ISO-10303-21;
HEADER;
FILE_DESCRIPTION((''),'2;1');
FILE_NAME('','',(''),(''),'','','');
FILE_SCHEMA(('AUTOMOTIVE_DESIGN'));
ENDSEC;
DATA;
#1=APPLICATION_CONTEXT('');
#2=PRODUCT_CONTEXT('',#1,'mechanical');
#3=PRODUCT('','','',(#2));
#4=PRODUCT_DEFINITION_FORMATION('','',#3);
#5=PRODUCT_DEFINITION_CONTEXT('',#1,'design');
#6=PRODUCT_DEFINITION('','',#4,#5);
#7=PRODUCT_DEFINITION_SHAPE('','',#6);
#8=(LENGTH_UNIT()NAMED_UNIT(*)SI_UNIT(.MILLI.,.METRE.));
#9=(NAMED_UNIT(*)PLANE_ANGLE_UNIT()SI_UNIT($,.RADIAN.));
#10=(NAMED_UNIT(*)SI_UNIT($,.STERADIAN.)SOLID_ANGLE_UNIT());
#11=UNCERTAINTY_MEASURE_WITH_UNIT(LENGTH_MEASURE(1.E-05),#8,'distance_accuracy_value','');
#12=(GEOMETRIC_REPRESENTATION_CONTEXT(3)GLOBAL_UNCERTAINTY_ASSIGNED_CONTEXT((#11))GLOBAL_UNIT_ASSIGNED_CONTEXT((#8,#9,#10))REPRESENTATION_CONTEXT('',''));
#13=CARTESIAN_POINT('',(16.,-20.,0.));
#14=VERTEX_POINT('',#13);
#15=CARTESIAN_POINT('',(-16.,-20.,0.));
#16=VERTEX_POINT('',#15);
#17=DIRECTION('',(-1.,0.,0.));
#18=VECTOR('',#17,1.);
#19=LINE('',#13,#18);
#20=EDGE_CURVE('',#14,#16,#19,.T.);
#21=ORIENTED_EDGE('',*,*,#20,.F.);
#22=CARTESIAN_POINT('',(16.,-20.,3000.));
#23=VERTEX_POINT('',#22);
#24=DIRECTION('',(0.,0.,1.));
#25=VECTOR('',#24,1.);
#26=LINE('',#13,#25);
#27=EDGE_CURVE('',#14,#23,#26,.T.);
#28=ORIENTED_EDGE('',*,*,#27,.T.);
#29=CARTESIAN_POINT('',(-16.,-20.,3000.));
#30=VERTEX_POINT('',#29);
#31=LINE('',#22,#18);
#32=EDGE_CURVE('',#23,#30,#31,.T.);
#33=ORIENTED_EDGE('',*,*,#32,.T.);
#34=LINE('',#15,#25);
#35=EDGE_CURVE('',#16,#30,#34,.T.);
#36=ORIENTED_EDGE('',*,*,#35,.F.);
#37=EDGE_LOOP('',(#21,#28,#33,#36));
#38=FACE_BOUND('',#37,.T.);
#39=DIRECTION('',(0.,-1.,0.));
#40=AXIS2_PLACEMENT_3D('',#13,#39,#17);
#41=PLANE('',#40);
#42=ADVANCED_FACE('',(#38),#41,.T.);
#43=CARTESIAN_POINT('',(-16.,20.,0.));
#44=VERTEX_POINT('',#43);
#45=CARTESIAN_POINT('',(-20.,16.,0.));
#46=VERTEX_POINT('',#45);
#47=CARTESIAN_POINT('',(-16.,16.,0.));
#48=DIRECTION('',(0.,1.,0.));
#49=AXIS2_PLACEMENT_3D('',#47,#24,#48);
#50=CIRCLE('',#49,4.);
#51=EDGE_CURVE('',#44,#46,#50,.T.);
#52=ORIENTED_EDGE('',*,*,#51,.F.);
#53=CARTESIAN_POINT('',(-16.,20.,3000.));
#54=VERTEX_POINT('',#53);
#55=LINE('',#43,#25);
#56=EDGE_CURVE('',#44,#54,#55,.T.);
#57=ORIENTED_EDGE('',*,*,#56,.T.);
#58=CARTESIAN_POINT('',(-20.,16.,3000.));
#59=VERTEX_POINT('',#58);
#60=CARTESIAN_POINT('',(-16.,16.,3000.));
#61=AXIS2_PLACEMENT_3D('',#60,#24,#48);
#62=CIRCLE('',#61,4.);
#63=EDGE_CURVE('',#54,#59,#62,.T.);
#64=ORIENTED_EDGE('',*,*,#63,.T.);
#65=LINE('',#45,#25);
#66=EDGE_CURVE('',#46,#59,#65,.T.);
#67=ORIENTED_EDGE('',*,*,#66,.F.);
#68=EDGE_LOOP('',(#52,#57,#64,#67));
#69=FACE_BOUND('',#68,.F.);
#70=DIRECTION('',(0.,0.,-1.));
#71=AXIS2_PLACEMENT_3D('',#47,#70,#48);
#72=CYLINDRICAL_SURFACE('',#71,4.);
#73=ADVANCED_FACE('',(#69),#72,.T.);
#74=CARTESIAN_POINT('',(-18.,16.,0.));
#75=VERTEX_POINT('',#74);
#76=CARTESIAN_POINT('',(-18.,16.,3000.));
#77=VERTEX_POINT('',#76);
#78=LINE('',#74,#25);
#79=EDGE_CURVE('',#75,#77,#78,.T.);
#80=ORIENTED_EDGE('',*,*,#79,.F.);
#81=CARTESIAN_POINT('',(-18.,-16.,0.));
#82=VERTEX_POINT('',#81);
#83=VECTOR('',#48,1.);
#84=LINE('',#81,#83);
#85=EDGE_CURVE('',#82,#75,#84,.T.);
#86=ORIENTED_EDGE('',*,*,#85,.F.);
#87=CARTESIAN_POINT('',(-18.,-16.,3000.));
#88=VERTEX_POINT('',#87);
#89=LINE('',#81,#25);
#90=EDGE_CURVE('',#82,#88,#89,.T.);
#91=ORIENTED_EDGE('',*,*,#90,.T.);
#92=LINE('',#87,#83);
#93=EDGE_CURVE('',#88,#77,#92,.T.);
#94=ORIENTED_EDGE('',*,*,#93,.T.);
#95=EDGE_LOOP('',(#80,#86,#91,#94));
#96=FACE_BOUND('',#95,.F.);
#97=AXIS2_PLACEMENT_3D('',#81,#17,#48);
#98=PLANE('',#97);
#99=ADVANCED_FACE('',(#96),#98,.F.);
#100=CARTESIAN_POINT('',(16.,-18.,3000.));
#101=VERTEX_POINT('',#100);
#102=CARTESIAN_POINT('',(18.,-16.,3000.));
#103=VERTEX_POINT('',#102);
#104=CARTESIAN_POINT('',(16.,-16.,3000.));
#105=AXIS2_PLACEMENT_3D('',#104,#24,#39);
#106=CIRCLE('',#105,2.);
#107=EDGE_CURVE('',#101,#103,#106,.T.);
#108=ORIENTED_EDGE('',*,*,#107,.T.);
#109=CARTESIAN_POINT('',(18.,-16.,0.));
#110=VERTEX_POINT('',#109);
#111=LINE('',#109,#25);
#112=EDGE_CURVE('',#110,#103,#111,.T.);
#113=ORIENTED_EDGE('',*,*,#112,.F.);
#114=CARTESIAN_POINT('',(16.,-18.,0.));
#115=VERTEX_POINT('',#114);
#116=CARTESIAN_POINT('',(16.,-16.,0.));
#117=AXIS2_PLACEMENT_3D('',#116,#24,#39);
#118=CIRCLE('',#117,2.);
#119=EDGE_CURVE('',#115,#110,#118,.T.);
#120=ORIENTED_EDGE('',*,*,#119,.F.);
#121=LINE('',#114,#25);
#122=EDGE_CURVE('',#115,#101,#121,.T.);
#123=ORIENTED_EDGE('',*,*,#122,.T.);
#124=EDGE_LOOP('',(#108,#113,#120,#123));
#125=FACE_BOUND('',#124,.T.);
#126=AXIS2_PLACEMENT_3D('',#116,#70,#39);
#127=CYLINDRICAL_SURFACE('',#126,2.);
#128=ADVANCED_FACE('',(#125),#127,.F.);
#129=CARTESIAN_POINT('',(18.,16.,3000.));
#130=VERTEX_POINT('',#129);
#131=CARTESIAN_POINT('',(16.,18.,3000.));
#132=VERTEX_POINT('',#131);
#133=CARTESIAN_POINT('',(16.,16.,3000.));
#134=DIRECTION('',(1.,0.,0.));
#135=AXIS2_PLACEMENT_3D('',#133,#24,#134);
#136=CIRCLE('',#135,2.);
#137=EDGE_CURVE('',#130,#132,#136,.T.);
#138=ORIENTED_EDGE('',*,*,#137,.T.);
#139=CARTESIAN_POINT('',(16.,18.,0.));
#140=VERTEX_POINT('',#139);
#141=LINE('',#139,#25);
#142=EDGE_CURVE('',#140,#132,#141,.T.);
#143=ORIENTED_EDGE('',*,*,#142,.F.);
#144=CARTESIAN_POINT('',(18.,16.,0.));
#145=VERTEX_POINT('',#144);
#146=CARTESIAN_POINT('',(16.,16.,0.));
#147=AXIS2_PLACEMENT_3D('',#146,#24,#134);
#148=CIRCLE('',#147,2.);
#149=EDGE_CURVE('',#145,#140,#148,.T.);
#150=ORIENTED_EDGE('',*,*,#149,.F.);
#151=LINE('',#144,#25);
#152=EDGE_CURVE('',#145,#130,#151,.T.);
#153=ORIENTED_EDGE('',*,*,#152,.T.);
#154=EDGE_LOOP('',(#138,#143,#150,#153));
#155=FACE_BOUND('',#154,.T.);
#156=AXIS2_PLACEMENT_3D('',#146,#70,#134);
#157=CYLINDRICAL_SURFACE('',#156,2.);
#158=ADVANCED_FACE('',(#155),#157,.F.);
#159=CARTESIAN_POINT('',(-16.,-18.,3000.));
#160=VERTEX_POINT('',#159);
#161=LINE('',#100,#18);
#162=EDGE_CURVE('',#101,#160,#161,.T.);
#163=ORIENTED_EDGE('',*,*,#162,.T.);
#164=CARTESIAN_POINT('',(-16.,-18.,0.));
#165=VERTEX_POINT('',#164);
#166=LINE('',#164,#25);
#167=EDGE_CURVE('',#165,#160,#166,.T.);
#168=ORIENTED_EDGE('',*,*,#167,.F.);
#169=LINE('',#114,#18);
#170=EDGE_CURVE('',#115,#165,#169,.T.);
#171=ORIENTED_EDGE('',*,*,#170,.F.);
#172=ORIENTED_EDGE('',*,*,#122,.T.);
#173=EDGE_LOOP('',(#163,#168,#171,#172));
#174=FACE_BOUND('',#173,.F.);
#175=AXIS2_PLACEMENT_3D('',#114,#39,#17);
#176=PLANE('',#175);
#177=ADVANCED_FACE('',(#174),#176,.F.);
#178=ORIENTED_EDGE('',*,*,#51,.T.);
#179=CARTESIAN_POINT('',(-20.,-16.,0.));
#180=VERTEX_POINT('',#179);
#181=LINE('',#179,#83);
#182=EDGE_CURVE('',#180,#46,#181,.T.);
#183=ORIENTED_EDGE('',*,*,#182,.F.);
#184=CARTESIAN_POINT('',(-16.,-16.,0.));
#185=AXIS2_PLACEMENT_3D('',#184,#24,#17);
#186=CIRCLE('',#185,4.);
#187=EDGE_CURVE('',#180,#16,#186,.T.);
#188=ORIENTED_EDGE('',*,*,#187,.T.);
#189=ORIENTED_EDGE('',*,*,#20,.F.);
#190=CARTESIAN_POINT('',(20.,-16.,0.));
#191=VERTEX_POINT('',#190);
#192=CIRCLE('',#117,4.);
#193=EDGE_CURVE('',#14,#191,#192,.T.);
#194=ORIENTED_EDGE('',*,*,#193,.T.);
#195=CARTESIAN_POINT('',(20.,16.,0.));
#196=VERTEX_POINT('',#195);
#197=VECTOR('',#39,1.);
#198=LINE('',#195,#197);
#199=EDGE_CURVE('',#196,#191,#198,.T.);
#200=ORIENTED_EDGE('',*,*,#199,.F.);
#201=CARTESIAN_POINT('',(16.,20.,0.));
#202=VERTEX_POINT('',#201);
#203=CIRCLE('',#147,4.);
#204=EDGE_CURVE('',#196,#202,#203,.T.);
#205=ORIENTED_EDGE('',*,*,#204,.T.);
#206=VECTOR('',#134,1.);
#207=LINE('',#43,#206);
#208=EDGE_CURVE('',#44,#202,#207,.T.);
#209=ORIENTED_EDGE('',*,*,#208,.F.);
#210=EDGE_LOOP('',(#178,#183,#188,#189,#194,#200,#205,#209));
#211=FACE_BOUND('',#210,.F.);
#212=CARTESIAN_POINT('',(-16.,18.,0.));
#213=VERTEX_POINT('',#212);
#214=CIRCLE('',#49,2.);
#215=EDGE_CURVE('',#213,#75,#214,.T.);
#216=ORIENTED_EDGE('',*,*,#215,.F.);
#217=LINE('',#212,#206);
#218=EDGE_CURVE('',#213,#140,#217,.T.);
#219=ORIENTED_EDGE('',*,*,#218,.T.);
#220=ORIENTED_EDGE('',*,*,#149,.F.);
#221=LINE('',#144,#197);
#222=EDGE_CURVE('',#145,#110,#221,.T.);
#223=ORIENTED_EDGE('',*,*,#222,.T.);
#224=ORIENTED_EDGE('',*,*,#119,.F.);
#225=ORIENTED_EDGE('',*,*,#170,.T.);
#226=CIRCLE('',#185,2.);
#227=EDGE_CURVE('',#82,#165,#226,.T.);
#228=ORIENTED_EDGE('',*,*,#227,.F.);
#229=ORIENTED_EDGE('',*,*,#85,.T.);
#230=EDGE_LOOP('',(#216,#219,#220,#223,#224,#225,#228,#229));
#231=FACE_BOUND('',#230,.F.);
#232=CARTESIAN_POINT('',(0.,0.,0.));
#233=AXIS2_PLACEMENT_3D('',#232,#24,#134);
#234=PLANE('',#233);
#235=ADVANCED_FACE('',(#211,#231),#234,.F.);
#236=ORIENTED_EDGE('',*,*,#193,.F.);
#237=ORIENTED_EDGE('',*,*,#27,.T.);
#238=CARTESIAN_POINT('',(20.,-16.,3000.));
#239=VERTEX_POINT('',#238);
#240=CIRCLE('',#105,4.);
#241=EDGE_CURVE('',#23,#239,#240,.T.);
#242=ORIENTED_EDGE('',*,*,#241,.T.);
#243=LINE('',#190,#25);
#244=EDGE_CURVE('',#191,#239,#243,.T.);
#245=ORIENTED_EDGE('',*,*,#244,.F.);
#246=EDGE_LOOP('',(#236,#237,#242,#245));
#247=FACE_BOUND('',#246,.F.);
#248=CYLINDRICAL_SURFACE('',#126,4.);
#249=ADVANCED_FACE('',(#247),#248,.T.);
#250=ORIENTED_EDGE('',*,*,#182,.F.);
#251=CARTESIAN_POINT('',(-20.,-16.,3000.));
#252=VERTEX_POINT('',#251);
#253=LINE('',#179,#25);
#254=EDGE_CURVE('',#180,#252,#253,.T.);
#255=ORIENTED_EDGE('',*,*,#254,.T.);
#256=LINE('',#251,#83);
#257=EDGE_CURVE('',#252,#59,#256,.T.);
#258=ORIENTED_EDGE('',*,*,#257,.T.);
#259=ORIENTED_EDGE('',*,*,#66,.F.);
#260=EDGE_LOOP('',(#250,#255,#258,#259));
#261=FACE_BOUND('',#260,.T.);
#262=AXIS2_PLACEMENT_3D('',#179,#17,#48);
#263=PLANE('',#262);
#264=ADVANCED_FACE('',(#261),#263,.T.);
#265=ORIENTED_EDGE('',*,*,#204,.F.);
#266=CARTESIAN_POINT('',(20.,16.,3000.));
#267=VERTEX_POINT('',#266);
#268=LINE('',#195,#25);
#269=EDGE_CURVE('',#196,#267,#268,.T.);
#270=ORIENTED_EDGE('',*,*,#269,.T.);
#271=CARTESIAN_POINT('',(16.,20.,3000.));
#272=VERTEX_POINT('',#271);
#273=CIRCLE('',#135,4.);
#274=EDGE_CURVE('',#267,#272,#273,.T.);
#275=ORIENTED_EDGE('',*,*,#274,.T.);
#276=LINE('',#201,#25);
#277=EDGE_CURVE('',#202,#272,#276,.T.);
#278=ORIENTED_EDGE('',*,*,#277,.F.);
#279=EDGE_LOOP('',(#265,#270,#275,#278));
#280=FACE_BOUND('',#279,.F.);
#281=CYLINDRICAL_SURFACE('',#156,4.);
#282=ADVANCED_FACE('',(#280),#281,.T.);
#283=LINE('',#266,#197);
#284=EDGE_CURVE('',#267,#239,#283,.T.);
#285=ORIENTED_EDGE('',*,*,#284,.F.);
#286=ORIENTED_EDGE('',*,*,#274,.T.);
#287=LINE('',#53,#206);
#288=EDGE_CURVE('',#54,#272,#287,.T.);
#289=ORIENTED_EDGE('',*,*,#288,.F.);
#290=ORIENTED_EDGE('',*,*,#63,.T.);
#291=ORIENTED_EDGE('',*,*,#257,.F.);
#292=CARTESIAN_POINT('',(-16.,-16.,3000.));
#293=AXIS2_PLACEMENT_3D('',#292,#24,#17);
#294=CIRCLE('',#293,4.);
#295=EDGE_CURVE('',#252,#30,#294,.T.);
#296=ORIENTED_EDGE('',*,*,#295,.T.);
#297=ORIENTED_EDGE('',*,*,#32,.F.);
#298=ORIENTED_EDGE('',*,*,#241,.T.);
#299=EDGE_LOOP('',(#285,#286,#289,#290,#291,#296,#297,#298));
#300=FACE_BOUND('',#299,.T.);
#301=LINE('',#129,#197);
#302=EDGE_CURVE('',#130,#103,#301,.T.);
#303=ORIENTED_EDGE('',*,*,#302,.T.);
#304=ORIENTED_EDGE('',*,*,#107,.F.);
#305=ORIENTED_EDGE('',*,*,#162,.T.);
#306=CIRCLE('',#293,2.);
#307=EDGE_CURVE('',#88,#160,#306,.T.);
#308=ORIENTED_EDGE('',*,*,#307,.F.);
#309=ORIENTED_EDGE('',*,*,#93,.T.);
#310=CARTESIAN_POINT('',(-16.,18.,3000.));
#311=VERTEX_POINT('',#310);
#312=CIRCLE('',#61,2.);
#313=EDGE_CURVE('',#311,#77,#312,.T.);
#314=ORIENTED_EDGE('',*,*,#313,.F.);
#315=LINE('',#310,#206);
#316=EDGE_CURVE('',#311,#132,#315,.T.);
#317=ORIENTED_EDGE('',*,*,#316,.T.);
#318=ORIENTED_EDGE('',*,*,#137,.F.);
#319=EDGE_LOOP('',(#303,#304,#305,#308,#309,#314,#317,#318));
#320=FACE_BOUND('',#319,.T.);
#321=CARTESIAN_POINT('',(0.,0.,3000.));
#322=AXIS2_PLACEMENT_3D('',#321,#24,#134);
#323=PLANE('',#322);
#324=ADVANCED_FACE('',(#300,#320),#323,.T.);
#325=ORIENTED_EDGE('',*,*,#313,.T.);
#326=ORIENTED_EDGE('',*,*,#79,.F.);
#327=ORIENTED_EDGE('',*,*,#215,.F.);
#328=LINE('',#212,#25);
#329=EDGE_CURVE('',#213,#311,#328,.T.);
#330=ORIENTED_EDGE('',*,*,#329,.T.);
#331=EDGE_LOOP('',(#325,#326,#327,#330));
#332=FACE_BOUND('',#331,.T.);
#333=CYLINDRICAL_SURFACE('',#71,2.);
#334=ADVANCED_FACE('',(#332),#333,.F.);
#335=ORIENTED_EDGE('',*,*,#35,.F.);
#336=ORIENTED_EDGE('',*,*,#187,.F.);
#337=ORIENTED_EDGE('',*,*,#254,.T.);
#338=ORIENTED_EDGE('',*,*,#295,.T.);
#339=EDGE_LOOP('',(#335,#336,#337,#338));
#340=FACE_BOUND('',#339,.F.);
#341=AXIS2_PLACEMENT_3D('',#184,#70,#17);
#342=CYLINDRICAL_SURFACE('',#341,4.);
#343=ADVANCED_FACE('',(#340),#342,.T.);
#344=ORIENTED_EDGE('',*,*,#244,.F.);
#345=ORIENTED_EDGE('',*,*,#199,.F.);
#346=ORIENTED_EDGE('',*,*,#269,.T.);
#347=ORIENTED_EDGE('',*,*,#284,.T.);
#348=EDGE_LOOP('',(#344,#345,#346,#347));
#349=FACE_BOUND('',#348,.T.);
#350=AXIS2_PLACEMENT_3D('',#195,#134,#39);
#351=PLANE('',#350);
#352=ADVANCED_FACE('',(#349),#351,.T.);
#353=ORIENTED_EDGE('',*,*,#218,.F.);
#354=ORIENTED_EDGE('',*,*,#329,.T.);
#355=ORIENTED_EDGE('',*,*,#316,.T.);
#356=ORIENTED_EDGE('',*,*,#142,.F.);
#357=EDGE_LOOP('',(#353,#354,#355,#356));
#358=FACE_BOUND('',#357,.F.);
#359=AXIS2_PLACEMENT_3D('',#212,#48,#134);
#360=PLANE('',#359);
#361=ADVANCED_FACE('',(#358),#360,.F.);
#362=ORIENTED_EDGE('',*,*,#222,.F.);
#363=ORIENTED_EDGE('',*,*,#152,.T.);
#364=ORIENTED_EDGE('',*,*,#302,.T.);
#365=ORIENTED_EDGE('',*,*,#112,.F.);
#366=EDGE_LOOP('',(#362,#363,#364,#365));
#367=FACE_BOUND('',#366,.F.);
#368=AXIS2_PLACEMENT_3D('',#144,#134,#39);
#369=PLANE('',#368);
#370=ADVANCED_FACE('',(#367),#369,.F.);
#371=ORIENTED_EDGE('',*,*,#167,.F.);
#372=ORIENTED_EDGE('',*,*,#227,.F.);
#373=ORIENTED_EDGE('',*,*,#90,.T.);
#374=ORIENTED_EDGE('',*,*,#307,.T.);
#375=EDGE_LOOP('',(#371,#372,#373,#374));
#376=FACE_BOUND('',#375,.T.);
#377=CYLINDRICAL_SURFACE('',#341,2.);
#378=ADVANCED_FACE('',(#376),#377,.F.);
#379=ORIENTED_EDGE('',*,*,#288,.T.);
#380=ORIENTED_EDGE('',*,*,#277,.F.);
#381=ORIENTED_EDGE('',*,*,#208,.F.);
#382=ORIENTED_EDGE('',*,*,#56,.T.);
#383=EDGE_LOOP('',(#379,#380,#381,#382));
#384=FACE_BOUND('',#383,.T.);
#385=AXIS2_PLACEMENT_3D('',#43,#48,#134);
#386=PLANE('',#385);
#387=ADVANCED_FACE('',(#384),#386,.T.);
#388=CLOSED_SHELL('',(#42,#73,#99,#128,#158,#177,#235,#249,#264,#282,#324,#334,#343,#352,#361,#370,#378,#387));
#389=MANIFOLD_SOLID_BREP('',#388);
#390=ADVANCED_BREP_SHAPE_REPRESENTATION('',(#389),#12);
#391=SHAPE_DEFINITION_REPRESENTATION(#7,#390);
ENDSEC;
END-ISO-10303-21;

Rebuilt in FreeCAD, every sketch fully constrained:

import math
import FreeCAD as App
import Part
import Sketcher

doc = App.newDocument("Part")
body = doc.addObject("PartDesign::Body", "Body")

sketch1 = body.newObject("Sketcher::SketchObject", "Sketch")
sketch1.AttachmentSupport = (doc.getObject("XY_Plane"), [""])
sketch1.MapMode = "FlatFace"
sketch1.addGeometry([
    Part.LineSegment(App.Vector(-20, 16, 0), App.Vector(-20, -16, 0)),
    Part.ArcOfCircle(Part.Circle(App.Vector(-16, -16, 0), App.Vector(0, 0, 1), 4), math.radians(180), math.radians(270)),
    Part.LineSegment(App.Vector(-16, -20, 0), App.Vector(16, -20, 0)),
    Part.ArcOfCircle(Part.Circle(App.Vector(16, -16, 0), App.Vector(0, 0, 1), 4), math.radians(-90), math.radians(0)),
    Part.LineSegment(App.Vector(20, -16, 0), App.Vector(20, 16, 0)),
    Part.ArcOfCircle(Part.Circle(App.Vector(16, 16, 0), App.Vector(0, 0, 1), 4), math.radians(0), math.radians(90)),
    Part.LineSegment(App.Vector(16, 20, 0), App.Vector(-16, 20, 0)),
    Part.ArcOfCircle(Part.Circle(App.Vector(-16, 16, 0), App.Vector(0, 0, 1), 4), math.radians(90), math.radians(180)),
    Part.ArcOfCircle(Part.Circle(App.Vector(-16, 16, 0), App.Vector(0, 0, 1), 2), math.radians(90), math.radians(180)),
    Part.LineSegment(App.Vector(-16, 18, 0), App.Vector(16, 18, 0)),
    Part.ArcOfCircle(Part.Circle(App.Vector(16, 16, 0), App.Vector(0, 0, 1), 2), math.radians(0), math.radians(90)),
    Part.LineSegment(App.Vector(18, 16, 0), App.Vector(18, -16, 0)),
    Part.ArcOfCircle(Part.Circle(App.Vector(16, -16, 0), App.Vector(0, 0, 1), 2), math.radians(-90), math.radians(0)),
    Part.LineSegment(App.Vector(16, -18, 0), App.Vector(-16, -18, 0)),
    Part.ArcOfCircle(Part.Circle(App.Vector(-16, -16, 0), App.Vector(0, 0, 1), 2), math.radians(180), math.radians(270)),
    Part.LineSegment(App.Vector(-18, -16, 0), App.Vector(-18, 16, 0)),
], False)
sketch1.addConstraint([
    Sketcher.Constraint("Tangent", 0, 2, 1, 1),
    Sketcher.Constraint("Tangent", 1, 2, 2, 1),
    Sketcher.Constraint("Tangent", 2, 2, 3, 1),
    Sketcher.Constraint("Tangent", 3, 2, 4, 1),
    Sketcher.Constraint("Tangent", 4, 2, 5, 1),
    Sketcher.Constraint("Tangent", 5, 2, 6, 1),
    Sketcher.Constraint("Tangent", 6, 2, 7, 1),
    Sketcher.Constraint("Tangent", 7, 2, 0, 1),
    Sketcher.Constraint("Tangent", 8, 1, 9, 1),
    Sketcher.Constraint("Tangent", 9, 2, 10, 2),
    Sketcher.Constraint("Tangent", 10, 1, 11, 1),
    Sketcher.Constraint("Tangent", 11, 2, 12, 2),
    Sketcher.Constraint("Tangent", 12, 1, 13, 1),
    Sketcher.Constraint("Tangent", 13, 2, 14, 2),
    Sketcher.Constraint("Tangent", 14, 1, 15, 1),
    Sketcher.Constraint("Tangent", 15, 2, 8, 2),
    Sketcher.Constraint("Vertical", 0),
    Sketcher.Constraint("Horizontal", 2),
    Sketcher.Constraint("Vertical", 4),
    Sketcher.Constraint("Horizontal", 6),
    Sketcher.Constraint("Horizontal", 9),
    Sketcher.Constraint("Vertical", 11),
    Sketcher.Constraint("Horizontal", 13),
    Sketcher.Constraint("Vertical", 15),
    Sketcher.Constraint("Coincident", 8, 3, 7, 3),
    Sketcher.Constraint("Coincident", 10, 3, 5, 3),
    Sketcher.Constraint("Coincident", 12, 3, 3, 3),
    Sketcher.Constraint("Equal", 1, 3),
    Sketcher.Constraint("Equal", 3, 5),
    Sketcher.Constraint("Equal", 5, 7),
    Sketcher.Constraint("Equal", 12, 14),
    Sketcher.Constraint("Symmetric", 1, 3, 5, 3, -1, 1),
    Sketcher.Constraint("Equal", 13, 0),
    Sketcher.Constraint("Radius", 1, 4.0),
    Sketcher.Constraint("Radius", 8, 2.0),
    Sketcher.Constraint("DistanceX", 0, 2, -1, 1, 20.0),
])
pad1 = body.newObject("PartDesign::Pad", "Pad")
pad1.Profile = sketch1
pad1.Length = 3000

doc.recompute()
